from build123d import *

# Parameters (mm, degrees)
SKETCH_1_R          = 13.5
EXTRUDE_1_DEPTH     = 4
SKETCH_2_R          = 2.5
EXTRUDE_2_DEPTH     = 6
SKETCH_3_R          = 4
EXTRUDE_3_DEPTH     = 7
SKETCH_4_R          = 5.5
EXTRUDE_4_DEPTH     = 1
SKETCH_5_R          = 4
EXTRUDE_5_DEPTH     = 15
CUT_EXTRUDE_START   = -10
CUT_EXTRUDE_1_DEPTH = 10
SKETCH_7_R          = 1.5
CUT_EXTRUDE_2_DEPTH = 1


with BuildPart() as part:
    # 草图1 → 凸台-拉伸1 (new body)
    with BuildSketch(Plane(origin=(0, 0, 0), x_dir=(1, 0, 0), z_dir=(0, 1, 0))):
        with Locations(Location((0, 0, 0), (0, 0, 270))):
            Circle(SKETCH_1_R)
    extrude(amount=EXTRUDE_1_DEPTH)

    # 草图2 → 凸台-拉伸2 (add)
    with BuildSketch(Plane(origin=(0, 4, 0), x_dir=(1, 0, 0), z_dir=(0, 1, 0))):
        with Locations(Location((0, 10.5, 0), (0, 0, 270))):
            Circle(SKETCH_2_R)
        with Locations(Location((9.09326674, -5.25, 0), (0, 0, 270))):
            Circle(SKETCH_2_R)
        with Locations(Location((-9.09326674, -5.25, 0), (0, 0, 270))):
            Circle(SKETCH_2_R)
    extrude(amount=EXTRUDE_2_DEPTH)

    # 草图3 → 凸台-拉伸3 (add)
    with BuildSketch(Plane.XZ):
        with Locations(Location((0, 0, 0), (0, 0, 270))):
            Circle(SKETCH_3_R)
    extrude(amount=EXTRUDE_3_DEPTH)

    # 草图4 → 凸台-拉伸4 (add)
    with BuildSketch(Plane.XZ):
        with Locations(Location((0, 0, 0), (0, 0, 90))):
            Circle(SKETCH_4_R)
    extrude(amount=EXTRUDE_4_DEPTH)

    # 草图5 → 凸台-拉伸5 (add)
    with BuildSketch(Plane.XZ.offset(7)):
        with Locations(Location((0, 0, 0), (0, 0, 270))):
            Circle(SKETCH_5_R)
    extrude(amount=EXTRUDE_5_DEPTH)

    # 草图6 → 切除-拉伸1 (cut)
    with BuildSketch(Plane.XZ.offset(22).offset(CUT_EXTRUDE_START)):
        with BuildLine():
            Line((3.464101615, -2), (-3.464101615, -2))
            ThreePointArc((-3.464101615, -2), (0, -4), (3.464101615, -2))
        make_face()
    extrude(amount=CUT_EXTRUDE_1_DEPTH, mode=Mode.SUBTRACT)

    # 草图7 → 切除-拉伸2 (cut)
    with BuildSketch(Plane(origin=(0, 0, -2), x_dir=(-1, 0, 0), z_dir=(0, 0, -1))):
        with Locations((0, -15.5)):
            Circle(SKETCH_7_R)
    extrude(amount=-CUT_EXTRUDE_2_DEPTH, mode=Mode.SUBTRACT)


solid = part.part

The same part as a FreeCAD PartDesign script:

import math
import FreeCAD as App
import Part
import Sketcher

doc = App.newDocument("Part")
body = doc.addObject("PartDesign::Body", "Body")

sketch1 = doc.addObject("Sketcher::SketchObject", "Sketch")
body.addObject(sketch1)
sketch1.AttachmentSupport = (doc.XZ_Plane, [""])
sketch1.MapMode = "FlatFace"
sketch1.addGeometry(Part.Circle(App.Vector(0, 0, 0), App.Vector(0, 0, 1), 14), False)
sketch1.addConstraint([
    Sketcher.Constraint("Coincident", 0, 3, -1, 1),
    Sketcher.Constraint("Diameter", 0, 27.0),
])
pad1 = doc.addObject("PartDesign::Pad", "Pad")
body.addObject(pad1)
pad1.Profile = sketch1
pad1.Length = 4
pad1.Reversed = True

sketch2 = doc.addObject("Sketcher::SketchObject", "Sketch001")
body.addObject(sketch2)
sketch2.AttachmentSupport = (doc.XZ_Plane, [""])
sketch2.MapMode = "FlatFace"
sketch2.AttachmentOffset = App.Placement(App.Vector(0, 0, -4), App.Rotation())
sketch2.addGeometry([
    Part.Circle(App.Vector(0, -10.5, 0), App.Vector(0, 0, 1), 2.5),
    Part.Circle(App.Vector(9.1, 5.2, 0), App.Vector(0, 0, 1), 2.5),
    Part.Circle(App.Vector(-9.1, 5.2, 0), App.Vector(0, 0, 1), 2.5),
], False)
sketch2.addConstraint([
    Sketcher.Constraint("Equal", 0, 1),
    Sketcher.Constraint("Equal", 1, 2),
    Sketcher.Constraint("Symmetric", 1, 3, 2, 3, -2),
    Sketcher.Constraint("PointOnObject", 0, 3, -2),
    Sketcher.Constraint("Diameter", 0, 5.0),
    Sketcher.Constraint("DistanceY", 0, 3, -1, 1, 10.5),
    Sketcher.Constraint("DistanceY", -1, 1, 1, 3, 5.25),
    Sketcher.Constraint("DistanceX", -1, 1, 1, 3, 9.093267),
])
pad2 = doc.addObject("PartDesign::Pad", "Pad001")
body.addObject(pad2)
pad2.Profile = sketch2
pad2.Length = 6
pad2.Reversed = True

sketch3 = doc.addObject("Sketcher::SketchObject", "Sketch002")
body.addObject(sketch3)
sketch3.AttachmentSupport = (doc.XZ_Plane, [""])
sketch3.MapMode = "FlatFace"
sketch3.addGeometry(Part.Circle(App.Vector(0, 0, 0), App.Vector(0, 0, 1), 4), False)
sketch3.addConstraint([
    Sketcher.Constraint("Coincident", 0, 3, -1, 1),
    Sketcher.Constraint("Diameter", 0, 8.0),
])
pad3 = doc.addObject("PartDesign::Pad", "Pad002")
body.addObject(pad3)
pad3.Profile = sketch3
pad3.Length = 7

sketch4 = doc.addObject("Sketcher::SketchObject", "Sketch003")
body.addObject(sketch4)
sketch4.AttachmentSupport = (doc.XZ_Plane, [""])
sketch4.MapMode = "FlatFace"
sketch4.addGeometry(Part.Circle(App.Vector(0, 0, 0), App.Vector(0, 0, 1), 6), False)
sketch4.addConstraint([
    Sketcher.Constraint("Coincident", 0, 3, -1, 1),
    Sketcher.Constraint("Diameter", 0, 11.0),
])
pad4 = doc.addObject("PartDesign::Pad", "Pad003")
body.addObject(pad4)
pad4.Profile = sketch4
pad4.Length = 1

sketch5 = doc.addObject("Sketcher::SketchObject", "Sketch004")
body.addObject(sketch5)
sketch5.AttachmentSupport = (doc.XZ_Plane, [""])
sketch5.MapMode = "FlatFace"
sketch5.AttachmentOffset = App.Placement(App.Vector(0, 0, 7), App.Rotation())
sketch5.addGeometry(Part.Circle(App.Vector(0, 0, 0), App.Vector(0, 0, 1), 4), False)
sketch5.addConstraint([
    Sketcher.Constraint("Coincident", 0, 3, -1, 1),
    Sketcher.Constraint("Diameter", 0, 8.0),
])
pad5 = doc.addObject("PartDesign::Pad", "Pad004")
body.addObject(pad5)
pad5.Profile = sketch5
pad5.Length = 15

sketch6 = doc.addObject("Sketcher::SketchObject", "Sketch005")
body.addObject(sketch6)
sketch6.AttachmentSupport = (doc.XZ_Plane, [""])
sketch6.MapMode = "FlatFace"
sketch6.AttachmentOffset = App.Placement(App.Vector(0, 0, 12), App.Rotation())
sketch6.addGeometry([
    Part.LineSegment(App.Vector(3.5, -2, 0), App.Vector(-3.5, -2, 0)),
    Part.ArcOfCircle(Part.Circle(App.Vector(0, 0, 0), App.Vector(0, 0, 1), 4), math.radians(-150), math.radians(-30)),
], False)
sketch6.addConstraint([
    Sketcher.Constraint("Coincident", 0, 1, 1, 2),
    Sketcher.Constraint("Coincident", 1, 1, 0, 2),
    Sketcher.Constraint("Horizontal", 0),
    Sketcher.Constraint("Coincident", 1, 3, -1, 1),
    Sketcher.Constraint("Radius", 1, 4.0),
    Sketcher.Constraint("DistanceY", 0, 1, -1, 1, 2.0),
])
pocket1 = doc.addObject("PartDesign::Pocket", "Pocket")
body.addObject(pocket1)
pocket1.Profile = sketch6
pocket1.Length = 10
pocket1.Reversed = True

sketch7 = doc.addObject("Sketcher::SketchObject", "Sketch006")
body.addObject(sketch7)
sketch7.AttachmentSupport = (doc.XY_Plane, [""])
sketch7.MapMode = "FlatFace"
sketch7.AttachmentOffset = App.Placement(App.Vector(0, 0, -2), App.Rotation())
sketch7.addGeometry(Part.Circle(App.Vector(0, -15.5, 0), App.Vector(0, 0, 1), 1.5), False)
sketch7.addConstraint([
    Sketcher.Constraint("PointOnObject", 0, 3, -2),
    Sketcher.Constraint("Diameter", 0, 3.0),
    Sketcher.Constraint("DistanceY", 0, 3, -1, 1, 15.5),
])
pocket2 = doc.addObject("PartDesign::Pocket", "Pocket001")
body.addObject(pocket2)
pocket2.Profile = sketch7
pocket2.Length = 1
pocket2.Reversed = True

doc.recompute()
